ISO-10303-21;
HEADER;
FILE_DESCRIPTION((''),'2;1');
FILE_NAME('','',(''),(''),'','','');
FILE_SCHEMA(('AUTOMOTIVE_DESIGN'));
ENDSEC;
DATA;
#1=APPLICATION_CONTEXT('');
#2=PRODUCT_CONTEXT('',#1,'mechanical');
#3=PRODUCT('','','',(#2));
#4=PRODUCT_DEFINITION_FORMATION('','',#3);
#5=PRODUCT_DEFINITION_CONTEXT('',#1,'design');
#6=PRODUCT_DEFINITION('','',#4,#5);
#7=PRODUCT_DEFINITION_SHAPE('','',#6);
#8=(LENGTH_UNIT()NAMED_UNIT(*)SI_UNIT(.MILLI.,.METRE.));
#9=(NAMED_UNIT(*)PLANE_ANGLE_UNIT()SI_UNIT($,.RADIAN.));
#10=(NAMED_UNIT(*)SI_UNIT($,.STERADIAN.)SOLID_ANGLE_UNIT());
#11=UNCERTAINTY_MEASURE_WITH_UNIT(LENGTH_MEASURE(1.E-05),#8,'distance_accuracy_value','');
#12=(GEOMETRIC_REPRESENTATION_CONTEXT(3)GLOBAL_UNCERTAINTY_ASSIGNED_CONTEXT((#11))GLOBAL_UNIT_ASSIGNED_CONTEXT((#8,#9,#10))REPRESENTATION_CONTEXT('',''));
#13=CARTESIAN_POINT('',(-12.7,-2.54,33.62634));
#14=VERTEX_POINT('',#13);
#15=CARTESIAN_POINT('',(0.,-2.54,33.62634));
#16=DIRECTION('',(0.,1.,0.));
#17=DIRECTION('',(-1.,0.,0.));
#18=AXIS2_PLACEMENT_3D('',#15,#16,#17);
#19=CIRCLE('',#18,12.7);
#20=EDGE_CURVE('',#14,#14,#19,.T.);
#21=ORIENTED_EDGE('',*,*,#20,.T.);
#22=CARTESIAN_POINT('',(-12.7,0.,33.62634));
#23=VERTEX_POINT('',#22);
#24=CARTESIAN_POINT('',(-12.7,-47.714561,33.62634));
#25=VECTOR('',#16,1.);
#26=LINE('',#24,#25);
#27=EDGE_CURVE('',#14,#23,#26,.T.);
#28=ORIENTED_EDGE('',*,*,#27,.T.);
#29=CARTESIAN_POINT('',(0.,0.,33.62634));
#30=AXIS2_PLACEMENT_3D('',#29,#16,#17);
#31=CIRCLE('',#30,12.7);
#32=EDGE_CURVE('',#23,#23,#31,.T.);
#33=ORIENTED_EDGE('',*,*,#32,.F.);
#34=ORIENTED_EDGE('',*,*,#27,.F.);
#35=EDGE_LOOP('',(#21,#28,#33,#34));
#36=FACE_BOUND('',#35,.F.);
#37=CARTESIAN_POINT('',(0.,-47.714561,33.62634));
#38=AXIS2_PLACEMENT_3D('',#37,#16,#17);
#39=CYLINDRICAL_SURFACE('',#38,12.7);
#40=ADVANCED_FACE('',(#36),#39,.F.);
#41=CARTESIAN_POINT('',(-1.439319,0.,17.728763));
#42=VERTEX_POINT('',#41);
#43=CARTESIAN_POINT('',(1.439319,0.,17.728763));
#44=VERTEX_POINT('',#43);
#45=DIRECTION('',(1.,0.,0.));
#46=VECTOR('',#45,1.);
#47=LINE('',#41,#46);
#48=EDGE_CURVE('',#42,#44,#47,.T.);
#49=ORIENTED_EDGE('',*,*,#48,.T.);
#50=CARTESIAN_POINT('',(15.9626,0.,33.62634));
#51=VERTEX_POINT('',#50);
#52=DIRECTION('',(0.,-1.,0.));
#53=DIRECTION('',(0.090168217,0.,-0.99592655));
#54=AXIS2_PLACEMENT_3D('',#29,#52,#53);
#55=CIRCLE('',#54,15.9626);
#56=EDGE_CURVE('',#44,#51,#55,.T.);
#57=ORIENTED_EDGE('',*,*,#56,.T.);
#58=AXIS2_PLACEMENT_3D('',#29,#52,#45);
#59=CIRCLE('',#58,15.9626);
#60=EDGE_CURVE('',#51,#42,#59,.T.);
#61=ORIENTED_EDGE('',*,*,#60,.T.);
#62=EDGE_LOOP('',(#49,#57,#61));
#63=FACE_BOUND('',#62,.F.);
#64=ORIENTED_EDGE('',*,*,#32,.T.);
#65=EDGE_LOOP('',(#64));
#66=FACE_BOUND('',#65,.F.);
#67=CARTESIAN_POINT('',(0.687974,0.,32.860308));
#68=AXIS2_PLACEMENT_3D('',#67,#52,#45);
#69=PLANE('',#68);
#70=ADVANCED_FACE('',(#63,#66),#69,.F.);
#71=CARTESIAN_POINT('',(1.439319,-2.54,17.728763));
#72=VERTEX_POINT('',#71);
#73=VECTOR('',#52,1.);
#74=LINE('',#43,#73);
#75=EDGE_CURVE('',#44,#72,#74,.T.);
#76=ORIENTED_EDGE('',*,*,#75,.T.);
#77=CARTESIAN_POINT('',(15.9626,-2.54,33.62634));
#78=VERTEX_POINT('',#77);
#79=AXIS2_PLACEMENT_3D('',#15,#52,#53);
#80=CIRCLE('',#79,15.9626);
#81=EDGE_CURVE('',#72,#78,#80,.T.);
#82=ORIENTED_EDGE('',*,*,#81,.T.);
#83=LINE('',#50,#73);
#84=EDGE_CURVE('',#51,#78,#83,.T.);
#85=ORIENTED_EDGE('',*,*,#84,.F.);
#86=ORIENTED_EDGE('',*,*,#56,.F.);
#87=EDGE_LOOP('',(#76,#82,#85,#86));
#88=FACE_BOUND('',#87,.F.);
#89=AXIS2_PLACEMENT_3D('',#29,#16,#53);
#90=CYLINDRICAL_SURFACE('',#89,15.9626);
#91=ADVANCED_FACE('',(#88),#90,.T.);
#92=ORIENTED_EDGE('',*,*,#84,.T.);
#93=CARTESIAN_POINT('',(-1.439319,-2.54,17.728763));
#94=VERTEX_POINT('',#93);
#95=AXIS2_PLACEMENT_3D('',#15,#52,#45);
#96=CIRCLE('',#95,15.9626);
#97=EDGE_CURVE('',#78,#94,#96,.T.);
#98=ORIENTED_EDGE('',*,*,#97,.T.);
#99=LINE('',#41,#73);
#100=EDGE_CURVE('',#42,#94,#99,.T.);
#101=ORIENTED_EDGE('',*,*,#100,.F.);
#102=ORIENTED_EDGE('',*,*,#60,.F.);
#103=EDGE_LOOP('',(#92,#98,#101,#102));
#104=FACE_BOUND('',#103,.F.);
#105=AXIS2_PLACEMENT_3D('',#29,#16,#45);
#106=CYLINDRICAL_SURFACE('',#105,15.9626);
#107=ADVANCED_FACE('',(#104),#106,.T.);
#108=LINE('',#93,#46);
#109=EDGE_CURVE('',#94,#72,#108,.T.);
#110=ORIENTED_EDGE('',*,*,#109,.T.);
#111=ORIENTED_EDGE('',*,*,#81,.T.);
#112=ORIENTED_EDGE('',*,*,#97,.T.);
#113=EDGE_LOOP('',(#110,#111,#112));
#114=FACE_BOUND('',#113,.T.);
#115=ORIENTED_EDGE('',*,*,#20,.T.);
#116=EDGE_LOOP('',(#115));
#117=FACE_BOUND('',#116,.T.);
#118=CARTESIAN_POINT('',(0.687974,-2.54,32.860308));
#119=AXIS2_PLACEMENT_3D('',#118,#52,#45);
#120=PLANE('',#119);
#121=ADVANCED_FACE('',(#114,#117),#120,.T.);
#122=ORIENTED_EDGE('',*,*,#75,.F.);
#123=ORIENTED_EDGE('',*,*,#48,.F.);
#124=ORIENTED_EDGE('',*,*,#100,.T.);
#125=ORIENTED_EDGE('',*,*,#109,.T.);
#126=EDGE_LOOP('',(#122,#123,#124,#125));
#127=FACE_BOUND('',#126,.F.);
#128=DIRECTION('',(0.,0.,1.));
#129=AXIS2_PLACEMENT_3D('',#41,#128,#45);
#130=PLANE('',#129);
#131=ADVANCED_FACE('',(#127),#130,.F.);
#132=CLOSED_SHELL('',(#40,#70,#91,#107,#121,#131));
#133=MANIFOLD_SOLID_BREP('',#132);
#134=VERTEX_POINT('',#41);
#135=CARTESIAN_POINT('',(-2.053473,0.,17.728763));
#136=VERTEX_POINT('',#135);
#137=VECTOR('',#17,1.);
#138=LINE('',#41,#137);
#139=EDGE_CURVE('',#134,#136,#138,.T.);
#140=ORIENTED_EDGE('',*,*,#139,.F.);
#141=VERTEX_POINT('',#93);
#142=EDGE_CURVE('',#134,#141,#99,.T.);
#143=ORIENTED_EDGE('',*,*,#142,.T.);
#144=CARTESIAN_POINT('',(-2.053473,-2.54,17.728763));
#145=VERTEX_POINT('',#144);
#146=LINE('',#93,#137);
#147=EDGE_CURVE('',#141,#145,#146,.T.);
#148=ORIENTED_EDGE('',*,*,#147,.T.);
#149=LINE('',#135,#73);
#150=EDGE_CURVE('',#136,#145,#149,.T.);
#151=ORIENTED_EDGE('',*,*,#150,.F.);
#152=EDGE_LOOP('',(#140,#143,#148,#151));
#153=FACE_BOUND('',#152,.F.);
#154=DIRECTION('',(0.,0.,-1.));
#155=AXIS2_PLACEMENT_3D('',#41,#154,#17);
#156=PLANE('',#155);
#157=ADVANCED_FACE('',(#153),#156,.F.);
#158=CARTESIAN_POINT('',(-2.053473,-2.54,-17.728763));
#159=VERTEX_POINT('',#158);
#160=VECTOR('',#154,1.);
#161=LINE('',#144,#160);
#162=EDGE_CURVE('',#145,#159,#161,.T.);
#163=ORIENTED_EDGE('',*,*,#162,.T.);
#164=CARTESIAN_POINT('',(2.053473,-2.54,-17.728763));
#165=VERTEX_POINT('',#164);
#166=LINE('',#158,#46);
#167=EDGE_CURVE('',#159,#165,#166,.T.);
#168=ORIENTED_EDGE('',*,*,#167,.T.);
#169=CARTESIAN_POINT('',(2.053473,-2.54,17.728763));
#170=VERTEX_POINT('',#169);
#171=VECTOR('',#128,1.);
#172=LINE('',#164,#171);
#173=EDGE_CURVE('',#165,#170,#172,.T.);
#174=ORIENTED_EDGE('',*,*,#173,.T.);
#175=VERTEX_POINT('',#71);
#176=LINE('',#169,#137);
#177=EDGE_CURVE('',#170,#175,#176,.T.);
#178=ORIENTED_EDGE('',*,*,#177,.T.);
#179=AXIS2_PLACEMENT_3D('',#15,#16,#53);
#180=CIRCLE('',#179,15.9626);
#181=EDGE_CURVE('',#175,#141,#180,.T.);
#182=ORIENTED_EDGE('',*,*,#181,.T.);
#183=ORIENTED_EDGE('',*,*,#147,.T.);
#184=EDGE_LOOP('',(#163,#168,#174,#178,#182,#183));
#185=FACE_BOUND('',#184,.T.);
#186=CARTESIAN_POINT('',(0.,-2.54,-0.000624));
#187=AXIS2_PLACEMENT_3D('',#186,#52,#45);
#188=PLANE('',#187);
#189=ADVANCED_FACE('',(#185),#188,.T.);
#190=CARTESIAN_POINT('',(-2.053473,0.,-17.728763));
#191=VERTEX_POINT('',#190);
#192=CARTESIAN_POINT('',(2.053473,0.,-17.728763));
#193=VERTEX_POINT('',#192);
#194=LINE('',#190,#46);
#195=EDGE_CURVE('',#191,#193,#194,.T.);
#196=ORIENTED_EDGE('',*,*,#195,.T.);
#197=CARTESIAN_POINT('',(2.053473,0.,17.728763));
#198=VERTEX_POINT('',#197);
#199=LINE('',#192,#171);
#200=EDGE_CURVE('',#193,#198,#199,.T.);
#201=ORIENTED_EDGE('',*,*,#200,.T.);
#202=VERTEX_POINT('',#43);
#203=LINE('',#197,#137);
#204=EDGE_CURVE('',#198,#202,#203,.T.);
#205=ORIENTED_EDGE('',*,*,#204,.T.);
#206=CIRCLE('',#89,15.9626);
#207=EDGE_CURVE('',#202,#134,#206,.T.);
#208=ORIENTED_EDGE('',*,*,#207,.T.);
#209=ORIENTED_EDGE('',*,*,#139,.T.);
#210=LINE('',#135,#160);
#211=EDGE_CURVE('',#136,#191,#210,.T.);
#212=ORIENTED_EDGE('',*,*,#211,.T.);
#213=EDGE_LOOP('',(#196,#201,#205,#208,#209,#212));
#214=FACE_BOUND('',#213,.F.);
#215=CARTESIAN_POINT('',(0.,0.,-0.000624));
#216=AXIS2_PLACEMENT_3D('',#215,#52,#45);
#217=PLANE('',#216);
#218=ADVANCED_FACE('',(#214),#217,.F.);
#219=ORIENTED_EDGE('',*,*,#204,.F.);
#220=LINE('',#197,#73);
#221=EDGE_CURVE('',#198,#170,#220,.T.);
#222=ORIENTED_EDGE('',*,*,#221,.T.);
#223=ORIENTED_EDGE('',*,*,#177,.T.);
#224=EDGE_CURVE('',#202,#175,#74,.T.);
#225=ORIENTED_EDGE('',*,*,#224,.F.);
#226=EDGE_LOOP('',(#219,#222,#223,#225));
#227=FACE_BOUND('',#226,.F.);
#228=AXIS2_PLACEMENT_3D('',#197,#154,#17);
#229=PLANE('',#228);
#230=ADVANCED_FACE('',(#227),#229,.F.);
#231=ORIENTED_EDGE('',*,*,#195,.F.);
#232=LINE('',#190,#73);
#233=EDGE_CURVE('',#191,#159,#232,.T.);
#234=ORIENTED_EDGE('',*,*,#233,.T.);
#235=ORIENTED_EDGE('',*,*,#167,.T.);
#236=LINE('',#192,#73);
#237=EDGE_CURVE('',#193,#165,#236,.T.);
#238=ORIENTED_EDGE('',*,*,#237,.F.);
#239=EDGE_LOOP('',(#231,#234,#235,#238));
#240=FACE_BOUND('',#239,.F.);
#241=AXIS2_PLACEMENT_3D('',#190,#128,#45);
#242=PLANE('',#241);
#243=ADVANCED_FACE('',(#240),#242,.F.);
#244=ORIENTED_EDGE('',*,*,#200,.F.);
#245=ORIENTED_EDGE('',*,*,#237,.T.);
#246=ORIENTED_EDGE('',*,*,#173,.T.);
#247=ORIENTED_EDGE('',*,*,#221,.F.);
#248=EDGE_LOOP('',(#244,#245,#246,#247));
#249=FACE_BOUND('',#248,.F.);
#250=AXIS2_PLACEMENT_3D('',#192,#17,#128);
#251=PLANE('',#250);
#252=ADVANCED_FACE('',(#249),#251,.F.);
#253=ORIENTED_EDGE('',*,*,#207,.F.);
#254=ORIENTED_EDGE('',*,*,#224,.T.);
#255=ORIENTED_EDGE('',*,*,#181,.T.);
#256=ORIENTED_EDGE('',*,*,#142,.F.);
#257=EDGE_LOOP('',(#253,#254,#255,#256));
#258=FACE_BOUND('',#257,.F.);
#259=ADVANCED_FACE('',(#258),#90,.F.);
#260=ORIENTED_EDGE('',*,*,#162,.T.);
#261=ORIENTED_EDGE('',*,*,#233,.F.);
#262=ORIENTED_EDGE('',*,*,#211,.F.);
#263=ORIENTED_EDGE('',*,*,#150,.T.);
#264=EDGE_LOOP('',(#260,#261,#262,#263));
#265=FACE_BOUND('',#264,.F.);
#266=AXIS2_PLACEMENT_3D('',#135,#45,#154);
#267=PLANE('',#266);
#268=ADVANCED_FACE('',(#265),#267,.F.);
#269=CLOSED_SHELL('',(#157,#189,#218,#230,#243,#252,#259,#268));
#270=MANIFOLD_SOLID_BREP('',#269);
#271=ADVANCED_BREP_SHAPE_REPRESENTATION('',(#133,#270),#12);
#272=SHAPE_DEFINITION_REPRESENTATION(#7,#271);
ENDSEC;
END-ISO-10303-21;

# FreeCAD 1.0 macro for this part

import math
import FreeCAD as App
import Part
import Sketcher
from FreeCAD import Vector
Q = App.Units.Quantity

doc = App.newDocument("Part")
body = doc.addObject("PartDesign::Body", "Body")

# Sketch on XZ plane
sketch1 = body.newObject("Sketcher::SketchObject", "Sketch")
sketch1.AttachmentSupport = (doc.getObject("XZ_Plane"), [""])
sketch1.MapMode = "FlatFace"
sketch1.addGeometry(Part.LineSegment(Vector(-1.4, 17.7, 0), Vector(1.4, 17.7, 0)), False)
sketch1.addGeometry(Part.ArcOfCircle(Part.Circle(Vector(0, 33.6, 0), Vector(0, 0, 1), 16), math.radians(-85), math.radians(0)), False)
sketch1.addGeometry(Part.ArcOfCircle(Part.Circle(Vector(0, 33.6, 0), Vector(0, 0, 1), 16), math.radians(0), math.radians(265)), False)
sketch1.addConstraint(Sketcher.Constraint("Coincident", 0, 2, 1, 1))
sketch1.addConstraint(Sketcher.Constraint("Tangent", 1, 2, 2, 1))
sketch1.addConstraint(Sketcher.Constraint("Coincident", 2, 2, 0, 1))
sketch1.addConstraint(Sketcher.Constraint("Horizontal", 0))
sketch1.addConstraint(Sketcher.Constraint("Equal", 1, 2))
sketch1.addConstraint(Sketcher.Constraint("PointOnObject", 1, 3, -2))
sketch1.addConstraint(Sketcher.Constraint("Horizontal", 2, 3, 1, 2))
sketch1.addConstraint(Sketcher.Constraint("Radius", 1, Q("15.9626 mm")))
sketch1.addConstraint(Sketcher.Constraint("DistanceX", 0, 1, 0, 2, Q("2.878638 mm")))
sketch1.addConstraint(Sketcher.Constraint("DistanceY", -1, 1, 1, 3, Q("33.62634 mm")))
pad1 = body.newObject("PartDesign::Pad", "Pad")
pad1.Profile = sketch1
pad1.Length = Q("0.1 in")

# Sketch on XZ plane
sketch2 = body.newObject("Sketcher::SketchObject", "Sketch001")
sketch2.AttachmentSupport = (doc.getObject("XZ_Plane"), [""])
sketch2.MapMode = "FlatFace"
sketch2.AttachmentOffset = App.Placement(Vector(0, 0, 0.1 * 25.4), App.Rotation())
sketch2.addGeometry(Part.Circle(Vector(0, 34, 0), Vector(0, 0, 1), 13), False)
sketch2.addConstraint(Sketcher.Constraint("PointOnObject", 0, 3, -2))
sketch2.addConstraint(Sketcher.Constraint("Diameter", 0, Q("1 in")))
sketch2.addConstraint(Sketcher.Constraint("DistanceY", -1, 1, 0, 3, Q("33.62634 mm")))
doc.recompute()
hole = body.newObject("PartDesign::Hole", "Hole")
hole.Profile = sketch2
hole.ThreadType = "None"
hole.Diameter = Q("1 in")
hole.DepthType = "ThroughAll"
body2 = doc.addObject("PartDesign::Body", "Body001")

# Sketch on XZ plane
sketch3 = body2.newObject("Sketcher::SketchObject", "Sketch002")
sketch3.AttachmentSupport = (doc.getObject("XZ_Plane001"), [""])
sketch3.MapMode = "FlatFace"
sketch3.addGeometry(Part.LineSegment(Vector(-2.1, -17.7, 0), Vector(2.1, -17.7, 0)), False)
sketch3.addGeometry(Part.LineSegment(Vector(2.1, -17.7, 0), Vector(2.1, 17.7, 0)), False)
sketch3.addGeometry(Part.LineSegment(Vector(2.1, 17.7, 0), Vector(1.4, 17.7, 0)), False)
sketch3.addGeometry(Part.ArcOfCircle(Part.Circle(Vector(0, 33.6, 0), Vector(0, 0, 1), 16), math.radians(-95.17), math.radians(-84.83)), False)
sketch3.addGeometry(Part.LineSegment(Vector(-1.4, 17.7, 0), Vector(-2.1, 17.7, 0)), False)
sketch3.addGeometry(Part.LineSegment(Vector(-2.1, 17.7, 0), Vector(-2.1, -17.7, 0)), False)
sketch3.addConstraint(Sketcher.Constraint("Coincident", 0, 2, 1, 1))
sketch3.addConstraint(Sketcher.Constraint("Coincident", 1, 2, 2, 1))
sketch3.addConstraint(Sketcher.Constraint("Coincident", 2, 2, 3, 2))
sketch3.addConstraint(Sketcher.Constraint("Coincident", 3, 1, 4, 1))
sketch3.addConstraint(Sketcher.Constraint("Coincident", 4, 2, 5, 1))
sketch3.addConstraint(Sketcher.Constraint("Coincident", 5, 2, 0, 1))
sketch3.addConstraint(Sketcher.Constraint("Horizontal", 0))
sketch3.addConstraint(Sketcher.Constraint("Vertical", 1))
sketch3.addConstraint(Sketcher.Constraint("Horizontal", 2))
sketch3.addConstraint(Sketcher.Constraint("Horizontal", 4))
sketch3.addConstraint(Sketcher.Constraint("Vertical", 5))
sketch3.addConstraint(Sketcher.Constraint("Symmetric", 0, 2, 4, 2, -1, 1))
sketch3.addConstraint(Sketcher.Constraint("Symmetric", 2, 2, 3, 1, -2))
sketch3.addConstraint(Sketcher.Constraint("Radius", 3, Q("15.9626 mm")))
sketch3.addConstraint(Sketcher.Constraint("DistanceX", 0, 1, 0, 2, Q("4.106947 mm")))
sketch3.addConstraint(Sketcher.Constraint("DistanceX", 2, 2, 2, 1, Q("0.614154 mm")))
sketch3.addConstraint(Sketcher.Constraint("DistanceY", 1, 1, 1, 2, Q("35.457525 mm")))
pad2 = body2.newObject("PartDesign::Pad", "Pad001")
pad2.Profile = sketch3
pad2.Length = Q("0.1 in")

doc.recompute()
